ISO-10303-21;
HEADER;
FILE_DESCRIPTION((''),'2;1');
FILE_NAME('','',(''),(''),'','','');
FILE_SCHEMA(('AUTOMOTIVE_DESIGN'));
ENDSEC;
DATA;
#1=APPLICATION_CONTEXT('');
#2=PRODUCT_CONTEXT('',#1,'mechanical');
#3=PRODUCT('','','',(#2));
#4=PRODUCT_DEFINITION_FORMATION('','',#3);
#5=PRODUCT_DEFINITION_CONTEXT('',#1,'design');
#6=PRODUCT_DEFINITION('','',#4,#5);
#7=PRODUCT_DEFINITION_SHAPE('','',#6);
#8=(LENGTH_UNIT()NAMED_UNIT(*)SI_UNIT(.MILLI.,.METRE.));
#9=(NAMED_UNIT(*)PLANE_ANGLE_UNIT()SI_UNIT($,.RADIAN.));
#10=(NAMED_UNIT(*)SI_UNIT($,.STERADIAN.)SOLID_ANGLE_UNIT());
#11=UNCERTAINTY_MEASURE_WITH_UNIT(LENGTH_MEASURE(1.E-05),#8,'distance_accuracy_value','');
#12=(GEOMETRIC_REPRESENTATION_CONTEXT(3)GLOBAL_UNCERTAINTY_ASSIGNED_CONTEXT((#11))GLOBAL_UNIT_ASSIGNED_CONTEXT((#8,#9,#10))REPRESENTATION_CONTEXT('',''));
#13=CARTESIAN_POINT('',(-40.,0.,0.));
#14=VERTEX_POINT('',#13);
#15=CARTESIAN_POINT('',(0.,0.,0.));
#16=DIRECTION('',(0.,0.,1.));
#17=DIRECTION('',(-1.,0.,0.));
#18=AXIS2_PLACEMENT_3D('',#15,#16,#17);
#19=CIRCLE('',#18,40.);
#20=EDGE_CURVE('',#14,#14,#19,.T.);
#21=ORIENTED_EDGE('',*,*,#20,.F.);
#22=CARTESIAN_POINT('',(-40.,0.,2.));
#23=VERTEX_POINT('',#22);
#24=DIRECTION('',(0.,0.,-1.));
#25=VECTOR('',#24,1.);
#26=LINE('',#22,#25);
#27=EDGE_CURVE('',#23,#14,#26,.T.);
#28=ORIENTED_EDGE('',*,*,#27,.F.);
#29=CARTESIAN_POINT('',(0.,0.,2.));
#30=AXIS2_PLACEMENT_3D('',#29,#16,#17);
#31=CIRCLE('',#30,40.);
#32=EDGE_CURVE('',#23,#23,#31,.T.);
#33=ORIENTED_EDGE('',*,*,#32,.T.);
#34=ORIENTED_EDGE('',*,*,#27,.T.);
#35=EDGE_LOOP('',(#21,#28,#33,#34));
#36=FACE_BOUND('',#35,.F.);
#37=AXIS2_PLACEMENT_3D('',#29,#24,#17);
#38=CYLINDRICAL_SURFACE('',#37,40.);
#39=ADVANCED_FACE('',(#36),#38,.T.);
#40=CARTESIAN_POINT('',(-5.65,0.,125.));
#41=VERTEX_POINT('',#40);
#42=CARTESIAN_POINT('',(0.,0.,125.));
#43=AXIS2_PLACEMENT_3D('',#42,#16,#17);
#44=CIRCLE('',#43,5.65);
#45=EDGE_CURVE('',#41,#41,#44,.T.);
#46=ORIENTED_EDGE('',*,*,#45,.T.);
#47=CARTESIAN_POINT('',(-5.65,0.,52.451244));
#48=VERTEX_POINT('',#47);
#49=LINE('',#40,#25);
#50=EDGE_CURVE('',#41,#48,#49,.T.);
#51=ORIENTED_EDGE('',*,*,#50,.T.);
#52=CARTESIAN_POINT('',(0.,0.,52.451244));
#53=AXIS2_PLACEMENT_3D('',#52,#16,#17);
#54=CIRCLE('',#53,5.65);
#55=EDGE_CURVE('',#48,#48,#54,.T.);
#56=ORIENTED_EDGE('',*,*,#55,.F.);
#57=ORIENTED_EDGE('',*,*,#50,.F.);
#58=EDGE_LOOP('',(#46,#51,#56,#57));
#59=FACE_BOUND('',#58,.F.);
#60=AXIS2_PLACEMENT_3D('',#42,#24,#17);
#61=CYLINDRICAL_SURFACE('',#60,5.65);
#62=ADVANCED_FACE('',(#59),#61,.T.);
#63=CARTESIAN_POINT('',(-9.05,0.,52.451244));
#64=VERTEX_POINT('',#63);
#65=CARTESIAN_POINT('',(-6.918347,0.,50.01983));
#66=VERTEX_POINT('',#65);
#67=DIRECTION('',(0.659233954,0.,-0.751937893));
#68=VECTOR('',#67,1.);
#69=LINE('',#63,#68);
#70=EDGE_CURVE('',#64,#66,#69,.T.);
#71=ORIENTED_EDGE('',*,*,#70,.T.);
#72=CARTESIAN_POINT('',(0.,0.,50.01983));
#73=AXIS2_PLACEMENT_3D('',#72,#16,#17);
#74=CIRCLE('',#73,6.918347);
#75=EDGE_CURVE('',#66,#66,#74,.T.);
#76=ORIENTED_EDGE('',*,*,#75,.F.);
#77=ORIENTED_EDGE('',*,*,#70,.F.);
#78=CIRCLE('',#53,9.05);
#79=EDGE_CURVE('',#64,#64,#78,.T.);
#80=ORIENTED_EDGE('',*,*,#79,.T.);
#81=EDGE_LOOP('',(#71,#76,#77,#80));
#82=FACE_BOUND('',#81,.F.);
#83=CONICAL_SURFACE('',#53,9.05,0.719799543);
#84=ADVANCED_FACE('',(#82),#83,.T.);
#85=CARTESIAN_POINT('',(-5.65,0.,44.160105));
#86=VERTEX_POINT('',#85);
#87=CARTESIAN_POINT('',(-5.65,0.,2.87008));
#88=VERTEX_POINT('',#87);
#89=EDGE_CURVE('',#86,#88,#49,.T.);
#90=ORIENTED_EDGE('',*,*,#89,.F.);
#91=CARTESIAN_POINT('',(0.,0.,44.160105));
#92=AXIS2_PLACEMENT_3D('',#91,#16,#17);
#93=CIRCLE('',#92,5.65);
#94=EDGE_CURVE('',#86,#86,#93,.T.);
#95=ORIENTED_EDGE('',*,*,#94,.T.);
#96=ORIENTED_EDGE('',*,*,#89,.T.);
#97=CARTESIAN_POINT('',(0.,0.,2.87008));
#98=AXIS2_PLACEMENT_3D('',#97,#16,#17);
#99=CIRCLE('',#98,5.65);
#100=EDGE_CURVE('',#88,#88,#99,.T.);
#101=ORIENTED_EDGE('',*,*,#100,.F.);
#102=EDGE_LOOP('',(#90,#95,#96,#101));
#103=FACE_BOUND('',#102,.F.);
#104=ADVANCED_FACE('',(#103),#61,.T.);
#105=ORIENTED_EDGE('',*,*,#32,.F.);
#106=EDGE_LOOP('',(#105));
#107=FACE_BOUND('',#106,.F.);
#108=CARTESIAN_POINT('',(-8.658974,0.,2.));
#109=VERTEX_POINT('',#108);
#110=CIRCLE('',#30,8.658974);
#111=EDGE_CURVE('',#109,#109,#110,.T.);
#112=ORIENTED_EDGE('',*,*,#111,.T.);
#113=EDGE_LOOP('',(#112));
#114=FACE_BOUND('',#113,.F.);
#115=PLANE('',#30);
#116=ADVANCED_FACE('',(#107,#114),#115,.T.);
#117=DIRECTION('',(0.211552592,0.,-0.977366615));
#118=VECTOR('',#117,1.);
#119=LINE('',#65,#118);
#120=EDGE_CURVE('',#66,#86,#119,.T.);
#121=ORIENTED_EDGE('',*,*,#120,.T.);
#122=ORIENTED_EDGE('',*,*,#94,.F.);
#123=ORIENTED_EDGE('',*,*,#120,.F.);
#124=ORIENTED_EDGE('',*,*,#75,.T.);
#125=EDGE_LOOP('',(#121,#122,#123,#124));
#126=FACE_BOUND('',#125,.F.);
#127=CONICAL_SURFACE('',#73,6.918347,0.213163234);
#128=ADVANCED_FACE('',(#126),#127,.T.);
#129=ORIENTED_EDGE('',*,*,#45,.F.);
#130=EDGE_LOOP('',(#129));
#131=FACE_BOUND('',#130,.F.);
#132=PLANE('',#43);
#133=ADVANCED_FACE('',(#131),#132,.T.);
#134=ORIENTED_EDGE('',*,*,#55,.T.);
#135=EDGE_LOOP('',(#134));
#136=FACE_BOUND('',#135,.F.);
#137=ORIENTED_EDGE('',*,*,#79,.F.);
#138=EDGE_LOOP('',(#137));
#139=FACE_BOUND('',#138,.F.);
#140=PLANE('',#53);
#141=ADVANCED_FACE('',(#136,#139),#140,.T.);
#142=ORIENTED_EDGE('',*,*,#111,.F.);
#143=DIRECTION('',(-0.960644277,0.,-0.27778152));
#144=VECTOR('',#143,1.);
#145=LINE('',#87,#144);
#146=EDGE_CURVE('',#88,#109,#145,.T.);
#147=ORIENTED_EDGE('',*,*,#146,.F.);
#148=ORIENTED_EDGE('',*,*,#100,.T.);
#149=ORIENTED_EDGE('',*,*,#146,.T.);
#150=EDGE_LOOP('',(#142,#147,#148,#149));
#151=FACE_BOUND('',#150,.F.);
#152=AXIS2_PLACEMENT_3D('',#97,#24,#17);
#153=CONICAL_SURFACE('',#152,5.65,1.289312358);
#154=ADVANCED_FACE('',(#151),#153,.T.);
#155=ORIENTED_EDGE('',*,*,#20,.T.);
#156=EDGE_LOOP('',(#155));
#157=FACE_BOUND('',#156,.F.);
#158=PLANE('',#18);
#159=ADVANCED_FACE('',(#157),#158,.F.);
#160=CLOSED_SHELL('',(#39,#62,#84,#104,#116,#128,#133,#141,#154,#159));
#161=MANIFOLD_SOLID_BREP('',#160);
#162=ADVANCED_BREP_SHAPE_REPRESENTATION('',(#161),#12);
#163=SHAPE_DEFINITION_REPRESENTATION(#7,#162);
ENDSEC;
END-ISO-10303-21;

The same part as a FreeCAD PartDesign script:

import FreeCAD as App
import Part
import Sketcher

doc = App.newDocument("Part")
body = doc.addObject("PartDesign::Body", "Body")

# Sketch on XZ plane
sketch1 = body.newObject("Sketcher::SketchObject", "Sketch")
sketch1.AttachmentSupport = (doc.getObject("XZ_Plane"), [""])
sketch1.MapMode = "FlatFace"
sketch1.addGeometry([
    Part.LineSegment(App.Vector(-40, 0, 0), App.Vector(0, 0, 0)),  # 0
    Part.LineSegment(App.Vector(0, 0, 0), App.Vector(0, 125, 0)),  # 1
    Part.LineSegment(App.Vector(0, 125, 0), App.Vector(-5.7, 125, 0)),  # 2
    Part.LineSegment(App.Vector(-5.7, 125, 0), App.Vector(-5.7, 52.5, 0)),  # 3
    Part.LineSegment(App.Vector(-5.7, 52.5, 0), App.Vector(-9.1, 52.5, 0)),  # 4
    Part.LineSegment(App.Vector(-9.1, 52.5, 0), App.Vector(-6.9, 50, 0)),  # 5
    Part.LineSegment(App.Vector(-6.9, 50, 0), App.Vector(-5.7, 44.2, 0)),  # 6
    Part.LineSegment(App.Vector(-5.7, 44.2, 0), App.Vector(-5.7, 2.9, 0)),  # 7
    Part.LineSegment(App.Vector(-5.7, 2.9, 0), App.Vector(-8.7, 2, 0)),  # 8
    Part.LineSegment(App.Vector(-8.7, 2, 0), App.Vector(-40, 2, 0)),  # 9
    Part.LineSegment(App.Vector(-40, 2, 0), App.Vector(-40, 0, 0)),  # 10
], False)
sketch1.addConstraint([
    Sketcher.Constraint("Coincident", 0, 2, 1, 1),
    Sketcher.Constraint("Coincident", 1, 2, 2, 1),
    Sketcher.Constraint("Coincident", 2, 2, 3, 1),
    Sketcher.Constraint("Coincident", 3, 2, 4, 1),
    Sketcher.Constraint("Coincident", 4, 2, 5, 1),
    Sketcher.Constraint("Coincident", 5, 2, 6, 1),
    Sketcher.Constraint("Coincident", 6, 2, 7, 1),
    Sketcher.Constraint("Coincident", 7, 2, 8, 1),
    Sketcher.Constraint("Coincident", 8, 2, 9, 1),
    Sketcher.Constraint("Coincident", 9, 2, 10, 1),
    Sketcher.Constraint("Coincident", 10, 2, 0, 1),
    Sketcher.Constraint("Horizontal", 0),
    Sketcher.Constraint("Vertical", 1),
    Sketcher.Constraint("Horizontal", 2),
    Sketcher.Constraint("Vertical", 3),
    Sketcher.Constraint("Horizontal", 4),
    Sketcher.Constraint("Vertical", 7),
    Sketcher.Constraint("Horizontal", 9),
    Sketcher.Constraint("Vertical", 10),
    Sketcher.Constraint("Coincident", 0, 2, -1, 1),
    Sketcher.Constraint("Vertical", 3, 2, 6, 2),
    Sketcher.Constraint("DistanceX", 0, 1, 0, 2, 40.0),
    Sketcher.Constraint("DistanceY", 1, 1, 1, 2, 125.0),
    Sketcher.Constraint("DistanceY", 10, 2, 10, 1, 2.0),
    Sketcher.Constraint("DistanceX", 4, 2, 4, 1, 3.4),
    Sketcher.Constraint("DistanceX", 2, 2, 2, 1, 5.65),
    Sketcher.Constraint("Distance", 5, 3.23353),
    Sketcher.Constraint("Distance", 6, 5.995422),
    Sketcher.Constraint("DistanceX", 9, 2, 9, 1, 31.341026),
    Sketcher.Constraint("DistanceY", 3, 2, 3, 1, 72.548756),
    Sketcher.Constraint("DistanceY", 7, 2, 7, 1, 41.290025),
    Sketcher.Constraint("DistanceY", -1, 1, 5, 2, 50.01983),
])
revolution = body.newObject("PartDesign::Revolution", "Revolution")
revolution.Profile = sketch1
revolution.ReferenceAxis = (sketch1, ["V_Axis"])
revolution.Angle = 360

doc.recompute()
